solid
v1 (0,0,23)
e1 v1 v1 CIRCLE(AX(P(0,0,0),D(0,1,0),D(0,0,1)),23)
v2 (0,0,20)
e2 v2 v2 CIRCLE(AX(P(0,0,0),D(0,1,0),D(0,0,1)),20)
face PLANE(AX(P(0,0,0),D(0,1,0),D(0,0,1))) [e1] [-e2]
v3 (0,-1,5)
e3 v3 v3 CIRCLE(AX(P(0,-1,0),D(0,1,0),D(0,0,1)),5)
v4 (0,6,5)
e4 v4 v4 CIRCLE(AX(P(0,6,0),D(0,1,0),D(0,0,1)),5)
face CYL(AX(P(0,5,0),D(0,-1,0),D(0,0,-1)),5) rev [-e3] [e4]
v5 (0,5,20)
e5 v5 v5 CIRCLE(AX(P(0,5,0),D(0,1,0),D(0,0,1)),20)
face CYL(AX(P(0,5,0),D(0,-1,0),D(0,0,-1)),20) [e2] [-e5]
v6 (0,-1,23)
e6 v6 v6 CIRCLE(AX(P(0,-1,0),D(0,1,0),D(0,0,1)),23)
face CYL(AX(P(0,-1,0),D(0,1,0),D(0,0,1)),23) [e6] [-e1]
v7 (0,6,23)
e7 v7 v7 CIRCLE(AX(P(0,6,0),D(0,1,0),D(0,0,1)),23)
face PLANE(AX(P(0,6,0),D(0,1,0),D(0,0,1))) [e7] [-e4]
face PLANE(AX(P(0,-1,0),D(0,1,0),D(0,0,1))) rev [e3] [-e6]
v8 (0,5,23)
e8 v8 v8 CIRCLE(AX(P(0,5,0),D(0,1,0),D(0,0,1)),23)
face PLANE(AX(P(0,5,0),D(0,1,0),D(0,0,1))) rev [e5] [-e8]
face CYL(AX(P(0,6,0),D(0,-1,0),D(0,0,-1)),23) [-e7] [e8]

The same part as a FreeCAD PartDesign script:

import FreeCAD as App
import Part
import Sketcher

V = App.Vector

doc = App.newDocument("Part")
params = doc.addObject("Spreadsheet::Sheet", "Params")
for row, (alias, value) in enumerate([
    ("sketch1_diameter", "40 mm"),
    ("sketch1_diameter2", "10 mm"),
    ("pad1_length", "5 mm"),
    ("sketch2_diameter", "46 mm"),
    ("sketch2_diameter2", "10 mm"),
    ("pad2_length", "1 mm"),
    ("sketch3_diameter", "46 mm"),
    ("sketch3_diameter2", "10 mm"),
    ("pad3_length", "1 mm"),
], start=1):
    params.set(f"A{row}", alias)
    params.set(f"B{row}", "=" + value)
    params.setAlias(f"B{row}", alias)

body = doc.addObject("PartDesign::Body", "Body")

# Sketch on XZ plane
sketch1 = doc.addObject("Sketcher::SketchObject", "Sketch")
body.addObject(sketch1)
sketch1.AttachmentSupport = (doc.XZ_Plane, [""])
sketch1.MapMode = "FlatFace"
sketch1.addGeometry(Part.Circle(V(0, 0, 0), V(0, 0, 1), 20), False)
sketch1.addGeometry(Part.Circle(V(0, 0, 0), V(0, 0, 1), 5), False)
sketch1.addConstraint(Sketcher.Constraint("Coincident", 0, 3, -1, 1))
sketch1.addConstraint(Sketcher.Constraint("Coincident", 1, 3, -1, 1))
sketch1.addConstraint(Sketcher.Constraint("Diameter", 0, 40.0))
sketch1.addConstraint(Sketcher.Constraint("Diameter", 1, 10.0))
sketch1.setExpression("Constraints[2]", "Params.sketch1_diameter")
sketch1.setExpression("Constraints[3]", "Params.sketch1_diameter2")
pad1 = doc.addObject("PartDesign::Pad", "Pad")
body.addObject(pad1)
pad1.Profile = sketch1
pad1.setExpression("Length", "Params.pad1_length")
pad1.Reversed = True

# Sketch on XZ plane
sketch2 = doc.addObject("Sketcher::SketchObject", "Sketch001")
body.addObject(sketch2)
sketch2.AttachmentSupport = (doc.XZ_Plane, [""])
sketch2.MapMode = "FlatFace"
sketch2.AttachmentOffset = App.Placement(V(0, 0, 1), App.Rotation())
sketch2.addGeometry(Part.Circle(V(0, 0, 0), V(0, 0, 1), 23), False)
sketch2.addGeometry(Part.Circle(V(0, 0, 0), V(0, 0, 1), 5), False)
sketch2.addConstraint(Sketcher.Constraint("Coincident", 0, 3, -1, 1))
sketch2.addConstraint(Sketcher.Constraint("Coincident", 1, 3, -1, 1))
sketch2.addConstraint(Sketcher.Constraint("Diameter", 0, 46.0))
sketch2.addConstraint(Sketcher.Constraint("Diameter", 1, 10.0))
sketch2.setExpression("Constraints[2]", "Params.sketch2_diameter")
sketch2.setExpression("Constraints[3]", "Params.sketch2_diameter2")
pad2 = doc.addObject("PartDesign::Pad", "Pad001")
body.addObject(pad2)
pad2.Profile = sketch2
pad2.setExpression("Length", "Params.pad2_length")
pad2.Reversed = True

# Sketch on XZ plane
sketch3 = doc.addObject("Sketcher::SketchObject", "Sketch002")
body.addObject(sketch3)
sketch3.AttachmentSupport = (doc.XZ_Plane, [""])
sketch3.MapMode = "FlatFace"
sketch3.AttachmentOffset = App.Placement(V(0, 0, -5), App.Rotation())
sketch3.addGeometry(Part.Circle(V(0, 0, 0), V(0, 0, 1), 23), False)
sketch3.addGeometry(Part.Circle(V(0, 0, 0), V(0, 0, 1), 5), False)
sketch3.addConstraint(Sketcher.Constraint("Coincident", 0, 3, -1, 1))
sketch3.addConstraint(Sketcher.Constraint("Coincident", 1, 3, -1, 1))
sketch3.addConstraint(Sketcher.Constraint("Diameter", 0, 46.0))
sketch3.addConstraint(Sketcher.Constraint("Diameter", 1, 10.0))
sketch3.setExpression("Constraints[2]", "Params.sketch3_diameter")
sketch3.setExpression("Constraints[3]", "Params.sketch3_diameter2")
pad3 = doc.addObject("PartDesign::Pad", "Pad002")
body.addObject(pad3)
pad3.Profile = sketch3
pad3.setExpression("Length", "Params.pad3_length")
pad3.Reversed = True

doc.recompute()
